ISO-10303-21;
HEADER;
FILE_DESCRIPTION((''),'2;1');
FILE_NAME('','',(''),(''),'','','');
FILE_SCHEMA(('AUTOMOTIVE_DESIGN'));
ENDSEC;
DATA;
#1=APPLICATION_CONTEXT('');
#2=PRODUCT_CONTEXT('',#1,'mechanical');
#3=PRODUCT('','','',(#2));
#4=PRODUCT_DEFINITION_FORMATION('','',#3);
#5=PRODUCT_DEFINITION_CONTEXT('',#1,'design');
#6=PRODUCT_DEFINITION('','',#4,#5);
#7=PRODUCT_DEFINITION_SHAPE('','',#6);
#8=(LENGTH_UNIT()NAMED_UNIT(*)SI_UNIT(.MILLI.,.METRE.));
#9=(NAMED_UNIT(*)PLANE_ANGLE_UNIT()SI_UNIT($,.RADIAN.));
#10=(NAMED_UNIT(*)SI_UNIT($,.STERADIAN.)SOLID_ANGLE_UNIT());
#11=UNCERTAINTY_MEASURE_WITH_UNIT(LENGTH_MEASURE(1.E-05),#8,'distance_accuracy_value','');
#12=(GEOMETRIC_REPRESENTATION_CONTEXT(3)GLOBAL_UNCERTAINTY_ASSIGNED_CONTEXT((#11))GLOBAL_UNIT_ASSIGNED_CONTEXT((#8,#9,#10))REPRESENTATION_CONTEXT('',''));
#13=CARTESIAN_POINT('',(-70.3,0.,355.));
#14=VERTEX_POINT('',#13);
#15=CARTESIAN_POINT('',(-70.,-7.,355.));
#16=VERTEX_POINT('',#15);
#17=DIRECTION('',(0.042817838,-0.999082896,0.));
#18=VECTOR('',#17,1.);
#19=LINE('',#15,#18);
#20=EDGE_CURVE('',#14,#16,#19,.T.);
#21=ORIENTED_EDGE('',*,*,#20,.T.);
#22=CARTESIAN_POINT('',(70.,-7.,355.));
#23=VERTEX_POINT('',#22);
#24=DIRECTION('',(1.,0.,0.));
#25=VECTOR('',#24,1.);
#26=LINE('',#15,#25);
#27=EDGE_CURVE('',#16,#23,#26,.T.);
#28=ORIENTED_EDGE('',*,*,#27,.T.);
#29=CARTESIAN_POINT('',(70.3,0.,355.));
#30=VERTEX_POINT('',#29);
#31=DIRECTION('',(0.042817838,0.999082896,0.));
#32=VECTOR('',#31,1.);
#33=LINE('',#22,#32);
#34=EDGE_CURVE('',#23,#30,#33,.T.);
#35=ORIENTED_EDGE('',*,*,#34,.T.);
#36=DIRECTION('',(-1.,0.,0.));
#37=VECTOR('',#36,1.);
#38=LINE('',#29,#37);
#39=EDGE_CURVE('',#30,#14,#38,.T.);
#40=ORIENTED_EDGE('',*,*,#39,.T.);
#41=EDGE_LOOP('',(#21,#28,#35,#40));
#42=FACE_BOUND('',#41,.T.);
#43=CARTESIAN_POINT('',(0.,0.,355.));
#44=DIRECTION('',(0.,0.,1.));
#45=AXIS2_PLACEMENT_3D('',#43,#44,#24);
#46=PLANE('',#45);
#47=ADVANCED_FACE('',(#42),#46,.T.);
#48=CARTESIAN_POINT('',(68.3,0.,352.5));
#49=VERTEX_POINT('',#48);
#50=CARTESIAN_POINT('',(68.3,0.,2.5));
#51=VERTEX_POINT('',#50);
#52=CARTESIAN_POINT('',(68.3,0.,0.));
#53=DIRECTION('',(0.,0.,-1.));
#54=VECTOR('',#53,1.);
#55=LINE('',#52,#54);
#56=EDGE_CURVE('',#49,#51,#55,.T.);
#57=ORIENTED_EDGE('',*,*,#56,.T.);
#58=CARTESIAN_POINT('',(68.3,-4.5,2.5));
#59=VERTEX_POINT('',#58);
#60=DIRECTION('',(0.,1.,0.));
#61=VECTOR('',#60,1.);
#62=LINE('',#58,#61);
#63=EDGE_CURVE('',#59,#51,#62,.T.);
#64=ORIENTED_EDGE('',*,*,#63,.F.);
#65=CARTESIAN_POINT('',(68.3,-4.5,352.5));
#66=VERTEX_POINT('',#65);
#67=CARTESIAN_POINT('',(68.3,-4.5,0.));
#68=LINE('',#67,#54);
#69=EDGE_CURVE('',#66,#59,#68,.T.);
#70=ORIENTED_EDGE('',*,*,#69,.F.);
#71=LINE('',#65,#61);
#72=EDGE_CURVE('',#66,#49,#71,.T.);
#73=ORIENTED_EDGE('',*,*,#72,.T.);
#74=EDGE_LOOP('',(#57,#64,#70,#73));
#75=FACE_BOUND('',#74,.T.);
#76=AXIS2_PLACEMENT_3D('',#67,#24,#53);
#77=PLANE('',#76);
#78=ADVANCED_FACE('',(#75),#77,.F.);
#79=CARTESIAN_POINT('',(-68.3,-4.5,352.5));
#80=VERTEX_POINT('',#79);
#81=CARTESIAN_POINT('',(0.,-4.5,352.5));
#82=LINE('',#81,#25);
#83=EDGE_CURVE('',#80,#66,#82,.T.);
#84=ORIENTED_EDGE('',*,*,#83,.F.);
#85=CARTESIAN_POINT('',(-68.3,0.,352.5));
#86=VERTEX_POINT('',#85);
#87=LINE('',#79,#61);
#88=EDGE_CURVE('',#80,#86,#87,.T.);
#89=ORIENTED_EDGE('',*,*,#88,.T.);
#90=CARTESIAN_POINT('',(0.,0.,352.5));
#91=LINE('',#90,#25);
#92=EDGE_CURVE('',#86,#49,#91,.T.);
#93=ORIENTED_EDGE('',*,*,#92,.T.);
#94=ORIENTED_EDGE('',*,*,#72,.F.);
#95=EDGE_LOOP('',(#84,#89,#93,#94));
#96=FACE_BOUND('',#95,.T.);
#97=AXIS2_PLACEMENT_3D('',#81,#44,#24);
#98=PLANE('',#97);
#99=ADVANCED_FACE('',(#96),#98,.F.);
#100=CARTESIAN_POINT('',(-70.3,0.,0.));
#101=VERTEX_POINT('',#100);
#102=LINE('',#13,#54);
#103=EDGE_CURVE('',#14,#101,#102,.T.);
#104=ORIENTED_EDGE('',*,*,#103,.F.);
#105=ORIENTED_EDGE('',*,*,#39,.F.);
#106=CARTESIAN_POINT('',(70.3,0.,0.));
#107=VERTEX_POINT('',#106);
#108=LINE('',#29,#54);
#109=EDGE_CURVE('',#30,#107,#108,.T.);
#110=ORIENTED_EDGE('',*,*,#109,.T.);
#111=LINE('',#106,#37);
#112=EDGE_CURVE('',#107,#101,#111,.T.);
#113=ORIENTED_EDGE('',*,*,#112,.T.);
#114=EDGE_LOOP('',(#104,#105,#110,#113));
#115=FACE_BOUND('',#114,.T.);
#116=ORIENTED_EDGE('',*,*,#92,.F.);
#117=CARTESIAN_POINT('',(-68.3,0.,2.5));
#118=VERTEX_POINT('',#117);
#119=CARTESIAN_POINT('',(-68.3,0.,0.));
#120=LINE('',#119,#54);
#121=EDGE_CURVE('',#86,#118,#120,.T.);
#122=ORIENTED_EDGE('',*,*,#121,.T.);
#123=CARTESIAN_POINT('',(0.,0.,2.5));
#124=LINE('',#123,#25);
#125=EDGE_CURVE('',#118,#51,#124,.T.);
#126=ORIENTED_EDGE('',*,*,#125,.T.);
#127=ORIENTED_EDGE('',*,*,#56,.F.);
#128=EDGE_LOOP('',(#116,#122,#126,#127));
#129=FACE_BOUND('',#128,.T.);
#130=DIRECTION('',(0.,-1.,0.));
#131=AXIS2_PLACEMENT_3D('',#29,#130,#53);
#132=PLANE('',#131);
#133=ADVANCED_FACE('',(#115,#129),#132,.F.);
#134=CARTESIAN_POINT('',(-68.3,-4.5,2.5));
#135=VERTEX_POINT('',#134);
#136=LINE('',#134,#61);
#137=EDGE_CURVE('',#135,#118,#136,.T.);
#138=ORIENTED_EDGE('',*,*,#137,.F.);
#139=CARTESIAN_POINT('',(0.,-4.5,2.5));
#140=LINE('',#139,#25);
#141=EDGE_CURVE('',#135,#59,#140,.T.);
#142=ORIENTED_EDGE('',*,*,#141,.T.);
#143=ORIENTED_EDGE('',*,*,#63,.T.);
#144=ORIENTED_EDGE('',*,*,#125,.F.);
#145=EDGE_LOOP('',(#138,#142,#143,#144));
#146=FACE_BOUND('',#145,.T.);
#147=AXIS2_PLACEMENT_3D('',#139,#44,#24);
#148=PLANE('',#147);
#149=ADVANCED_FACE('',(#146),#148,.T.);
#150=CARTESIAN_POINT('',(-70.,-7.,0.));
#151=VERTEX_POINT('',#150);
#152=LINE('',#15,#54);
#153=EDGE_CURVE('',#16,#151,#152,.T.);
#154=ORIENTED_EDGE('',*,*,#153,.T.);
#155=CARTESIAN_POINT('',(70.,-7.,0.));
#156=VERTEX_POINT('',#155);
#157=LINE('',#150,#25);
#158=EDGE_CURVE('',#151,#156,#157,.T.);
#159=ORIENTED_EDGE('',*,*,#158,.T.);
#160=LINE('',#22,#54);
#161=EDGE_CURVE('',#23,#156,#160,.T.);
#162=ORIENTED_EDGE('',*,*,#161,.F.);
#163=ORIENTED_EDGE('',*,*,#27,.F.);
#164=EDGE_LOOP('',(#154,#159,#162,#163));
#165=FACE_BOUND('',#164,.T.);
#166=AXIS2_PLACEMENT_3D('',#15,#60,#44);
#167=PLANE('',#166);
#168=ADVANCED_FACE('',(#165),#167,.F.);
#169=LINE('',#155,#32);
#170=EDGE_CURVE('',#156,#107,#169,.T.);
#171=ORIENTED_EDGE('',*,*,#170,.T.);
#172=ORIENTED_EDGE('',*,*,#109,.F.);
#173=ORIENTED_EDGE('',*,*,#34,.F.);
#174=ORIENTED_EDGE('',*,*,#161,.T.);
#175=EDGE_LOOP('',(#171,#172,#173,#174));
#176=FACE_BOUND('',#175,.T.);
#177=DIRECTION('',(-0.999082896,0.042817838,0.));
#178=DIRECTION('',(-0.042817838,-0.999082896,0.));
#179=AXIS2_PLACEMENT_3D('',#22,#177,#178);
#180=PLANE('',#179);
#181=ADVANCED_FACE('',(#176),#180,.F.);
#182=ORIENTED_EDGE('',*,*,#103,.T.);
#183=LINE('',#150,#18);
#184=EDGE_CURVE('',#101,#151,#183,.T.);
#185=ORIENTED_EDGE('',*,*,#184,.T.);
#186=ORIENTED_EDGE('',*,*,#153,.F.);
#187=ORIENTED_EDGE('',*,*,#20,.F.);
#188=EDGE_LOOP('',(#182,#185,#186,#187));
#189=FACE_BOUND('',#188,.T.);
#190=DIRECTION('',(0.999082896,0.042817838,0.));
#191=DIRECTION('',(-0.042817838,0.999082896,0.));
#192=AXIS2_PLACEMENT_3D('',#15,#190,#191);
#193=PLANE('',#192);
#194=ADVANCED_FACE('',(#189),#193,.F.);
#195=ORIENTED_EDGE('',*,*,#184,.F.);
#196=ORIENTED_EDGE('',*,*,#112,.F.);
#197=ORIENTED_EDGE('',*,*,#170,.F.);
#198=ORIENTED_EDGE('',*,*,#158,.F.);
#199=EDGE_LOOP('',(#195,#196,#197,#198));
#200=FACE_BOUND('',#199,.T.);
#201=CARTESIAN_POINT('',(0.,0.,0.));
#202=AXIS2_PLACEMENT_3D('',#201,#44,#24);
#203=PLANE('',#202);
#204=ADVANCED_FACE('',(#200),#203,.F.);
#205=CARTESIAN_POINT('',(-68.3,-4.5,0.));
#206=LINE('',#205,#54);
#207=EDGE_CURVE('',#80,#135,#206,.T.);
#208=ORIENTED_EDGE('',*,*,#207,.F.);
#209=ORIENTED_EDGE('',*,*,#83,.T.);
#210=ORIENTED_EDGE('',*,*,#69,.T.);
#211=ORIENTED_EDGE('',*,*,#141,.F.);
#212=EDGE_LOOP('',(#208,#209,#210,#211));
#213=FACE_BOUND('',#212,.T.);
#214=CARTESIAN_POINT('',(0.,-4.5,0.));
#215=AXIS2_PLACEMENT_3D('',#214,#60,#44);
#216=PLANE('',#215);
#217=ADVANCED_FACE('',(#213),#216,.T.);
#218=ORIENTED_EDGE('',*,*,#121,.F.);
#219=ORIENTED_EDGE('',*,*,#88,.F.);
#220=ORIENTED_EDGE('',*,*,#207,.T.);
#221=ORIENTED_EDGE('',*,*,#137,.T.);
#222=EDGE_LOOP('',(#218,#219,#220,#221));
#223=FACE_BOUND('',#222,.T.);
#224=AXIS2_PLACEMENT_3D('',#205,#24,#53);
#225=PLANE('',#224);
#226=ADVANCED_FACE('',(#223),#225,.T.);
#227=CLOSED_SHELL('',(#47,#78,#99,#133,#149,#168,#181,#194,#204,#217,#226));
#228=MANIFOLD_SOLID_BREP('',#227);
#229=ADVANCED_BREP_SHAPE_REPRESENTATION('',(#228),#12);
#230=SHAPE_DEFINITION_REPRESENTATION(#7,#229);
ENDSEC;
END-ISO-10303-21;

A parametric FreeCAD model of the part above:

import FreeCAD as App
import Part
import Sketcher
from FreeCAD import Vector
Q = App.Units.Quantity


def add_polygon(sketch, points):
    """Adds a closed chain of lines whose ends are joined by coincident constraints."""
    first, n = sketch.GeometryCount, len(points)
    for a, b in zip(points, points[1:] + points[:1]):
        sketch.addGeometry(Part.LineSegment(App.Vector(*a, 0), App.Vector(*b, 0)), False)
    for i in range(n):
        sketch.addConstraint(Sketcher.Constraint("Coincident", first + i, 2, first + (i + 1) % n, 1))

doc = App.newDocument("Part")
body = doc.addObject("PartDesign::Body", "Body")

sketch1 = doc.addObject("Sketcher::SketchObject", "Sketch")
body.addObject(sketch1)
sketch1.AttachmentSupport = (doc.XY_Plane, [""])
sketch1.MapMode = "FlatFace"
add_polygon(sketch1, [(-70, -7), (70, -7), (70.3, 0), (-70.3, 0)])
sketch1.addConstraint(Sketcher.Constraint("Horizontal", 0))
sketch1.addConstraint(Sketcher.Constraint("Horizontal", 2))
sketch1.addConstraint(Sketcher.Constraint("Symmetric", 1, 2, 2, 2, -1, 1))
sketch1.addConstraint(Sketcher.Constraint("Equal", 1, 3))
sketch1.addConstraint(Sketcher.Constraint("DistanceX", 0, 1, 0, 2, Q("140 mm")))
sketch1.addConstraint(Sketcher.Constraint("DistanceX", 2, 2, 2, 1, Q("140.6 mm")))
sketch1.addConstraint(Sketcher.Constraint("DistanceY", 0, 2, -1, 1, Q("7 mm")))
pad1 = doc.addObject("PartDesign::Pad", "Pad")
body.addObject(pad1)
pad1.Profile = sketch1
pad1.Length = 355

sketch2 = doc.addObject("Sketcher::SketchObject", "Sketch001")
body.addObject(sketch2)
sketch2.AttachmentSupport = (doc.XZ_Plane, [""])
sketch2.MapMode = "FlatFace"
add_polygon(sketch2, [(-68, 2), (-68, 352), (68, 352), (68, 2)])
sketch2.addConstraint(Sketcher.Constraint("Vertical", 0))
sketch2.addConstraint(Sketcher.Constraint("Horizontal", 1))
sketch2.addConstraint(Sketcher.Constraint("Vertical", 2))
sketch2.addConstraint(Sketcher.Constraint("Horizontal", 3))
sketch2.addConstraint(Sketcher.Constraint("DistanceY", 0, 1, 0, 2, Q("350 mm")))
sketch2.addConstraint(Sketcher.Constraint("DistanceX", 1, 1, 1, 2, Q("136.6 mm")))
sketch2.addConstraint(Sketcher.Constraint("DistanceX", 0, 2, -1, 1, Q("68.3 mm")))
sketch2.addConstraint(Sketcher.Constraint("DistanceY", -1, 1, 0, 2, Q("352.5 mm")))
pocket1 = doc.addObject("PartDesign::Pocket", "Pocket")
body.addObject(pocket1)
pocket1.Profile = sketch2
pocket1.Length = 4.5
pocket1.Reversed = True

doc.recompute()
